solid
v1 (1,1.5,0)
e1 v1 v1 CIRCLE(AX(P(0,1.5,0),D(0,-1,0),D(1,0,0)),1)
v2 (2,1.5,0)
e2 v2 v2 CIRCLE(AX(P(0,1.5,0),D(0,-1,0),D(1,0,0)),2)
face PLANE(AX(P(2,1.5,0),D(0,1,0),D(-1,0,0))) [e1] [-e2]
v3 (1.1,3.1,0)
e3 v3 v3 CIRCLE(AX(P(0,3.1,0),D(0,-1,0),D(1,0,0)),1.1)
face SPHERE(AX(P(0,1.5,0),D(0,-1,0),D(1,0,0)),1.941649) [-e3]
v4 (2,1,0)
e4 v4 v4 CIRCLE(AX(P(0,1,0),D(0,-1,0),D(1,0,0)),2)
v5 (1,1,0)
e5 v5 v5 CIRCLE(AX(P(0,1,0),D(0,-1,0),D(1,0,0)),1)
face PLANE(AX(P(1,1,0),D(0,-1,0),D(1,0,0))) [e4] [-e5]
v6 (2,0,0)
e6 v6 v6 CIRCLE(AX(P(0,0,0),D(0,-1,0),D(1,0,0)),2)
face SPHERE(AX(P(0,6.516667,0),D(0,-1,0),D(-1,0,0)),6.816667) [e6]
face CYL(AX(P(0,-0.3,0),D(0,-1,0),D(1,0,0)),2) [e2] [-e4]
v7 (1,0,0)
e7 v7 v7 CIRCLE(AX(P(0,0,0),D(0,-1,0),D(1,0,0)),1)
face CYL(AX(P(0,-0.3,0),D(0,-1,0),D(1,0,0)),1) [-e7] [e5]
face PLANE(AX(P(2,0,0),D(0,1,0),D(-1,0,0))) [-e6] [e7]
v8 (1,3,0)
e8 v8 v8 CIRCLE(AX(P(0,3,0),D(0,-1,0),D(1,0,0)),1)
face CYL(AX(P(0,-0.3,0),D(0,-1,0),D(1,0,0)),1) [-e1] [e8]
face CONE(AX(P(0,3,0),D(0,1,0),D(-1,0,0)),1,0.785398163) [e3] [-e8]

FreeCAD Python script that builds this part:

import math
import FreeCAD as App
import Part
import Sketcher
from FreeCAD import Vector
Q = App.Units.Quantity

doc = App.newDocument("Part")
body = doc.addObject("PartDesign::Body", "Body")

# Sketch on XY plane
sketch1 = body.newObject("Sketcher::SketchObject", "Sketch")
sketch1.AttachmentSupport = (doc.getObject("XY_Plane"), [""])
sketch1.MapMode = "FlatFace"
sketch1.addGeometry(Part.LineSegment(Vector(0, 3.441649, 0), Vector(0, -0.3, 0)), False)
sketch1.addGeometry(Part.ArcOfCircle(Part.Circle(Vector(0, 6.516667, 0), Vector(0, 0, 1), 6.816667), math.radians(-90), math.radians(-72.938469)), False)
sketch1.addGeometry(Part.LineSegment(Vector(2, 0, 0), Vector(1, 0, 0)), False)
sketch1.addGeometry(Part.LineSegment(Vector(1, 0, 0), Vector(1, 1, 0)), False)
sketch1.addGeometry(Part.LineSegment(Vector(1, 1, 0), Vector(2, 1, 0)), False)
sketch1.addGeometry(Part.LineSegment(Vector(2, 1, 0), Vector(2, 1.5, 0)), False)
sketch1.addGeometry(Part.LineSegment(Vector(2, 1.5, 0), Vector(1, 1.5, 0)), False)
sketch1.addGeometry(Part.LineSegment(Vector(1, 1.5, 0), Vector(1, 3, 0)), False)
sketch1.addGeometry(Part.LineSegment(Vector(1, 3, 0), Vector(1.1, 3.1, 0)), False)
sketch1.addGeometry(Part.ArcOfCircle(Part.Circle(Vector(0, 1.5, 0), Vector(0, 0, 1), 1.941649), math.radians(55.491477), math.radians(90)), False)
sketch1.addConstraint(Sketcher.Constraint("Coincident", 0, 2, 1, 1))
sketch1.addConstraint(Sketcher.Constraint("Coincident", 1, 2, 2, 1))
sketch1.addConstraint(Sketcher.Constraint("Coincident", 2, 2, 3, 1))
sketch1.addConstraint(Sketcher.Constraint("Coincident", 3, 2, 4, 1))
sketch1.addConstraint(Sketcher.Constraint("Coincident", 4, 2, 5, 1))
sketch1.addConstraint(Sketcher.Constraint("Coincident", 5, 2, 6, 1))
sketch1.addConstraint(Sketcher.Constraint("Coincident", 6, 2, 7, 1))
sketch1.addConstraint(Sketcher.Constraint("Coincident", 7, 2, 8, 1))
sketch1.addConstraint(Sketcher.Constraint("Coincident", 8, 2, 9, 1))
sketch1.addConstraint(Sketcher.Constraint("Coincident", 9, 2, 0, 1))
sketch1.addConstraint(Sketcher.Constraint("Vertical", 0))
sketch1.addConstraint(Sketcher.Constraint("Horizontal", 2))
sketch1.addConstraint(Sketcher.Constraint("Vertical", 3))
sketch1.addConstraint(Sketcher.Constraint("Horizontal", 4))
sketch1.addConstraint(Sketcher.Constraint("Vertical", 5))
sketch1.addConstraint(Sketcher.Constraint("Horizontal", 6))
sketch1.addConstraint(Sketcher.Constraint("Vertical", 7))
sketch1.addConstraint(Sketcher.Constraint("PointOnObject", 1, 3, -2))
sketch1.addConstraint(Sketcher.Constraint("PointOnObject", 9, 3, -2))
sketch1.addConstraint(Sketcher.Constraint("PointOnObject", 0, 2, -2))
sketch1.addConstraint(Sketcher.Constraint("PointOnObject", 1, 2, -1))
sketch1.addConstraint(Sketcher.Constraint("Horizontal", 9, 3, 5, 2))
sketch1.addConstraint(Sketcher.Constraint("Vertical", 1, 2, 4, 2))
sketch1.addConstraint(Sketcher.Constraint("Vertical", 3, 2, 6, 2))
sketch1.addConstraint(Sketcher.Constraint("Equal", 6, 3))
sketch1.addConstraint(Sketcher.Constraint("DistanceX", 2, 2, 2, 1, 1.0))
sketch1.addConstraint(Sketcher.Constraint("Angle", 8, Q("45 deg")))
sketch1.addConstraint(Sketcher.Constraint("DistanceY", 5, 1, 5, 2, 0.5))
sketch1.addConstraint(Sketcher.Constraint("DistanceY", 7, 1, 7, 2, 1.5))
sketch1.addConstraint(Sketcher.Constraint("DistanceX", -1, 1, 1, 2, 2.0))
sketch1.addConstraint(Sketcher.Constraint("DistanceY", 0, 2, -1, 1, 0.3))
sketch1.addConstraint(Sketcher.Constraint("DistanceX", -1, 1, 8, 2, 1.1))
revolution = body.newObject("PartDesign::Revolution", "Revolution")
revolution.Profile = sketch1
revolution.ReferenceAxis = (sketch1, ["V_Axis"])
revolution.Angle = 360

doc.recompute()
